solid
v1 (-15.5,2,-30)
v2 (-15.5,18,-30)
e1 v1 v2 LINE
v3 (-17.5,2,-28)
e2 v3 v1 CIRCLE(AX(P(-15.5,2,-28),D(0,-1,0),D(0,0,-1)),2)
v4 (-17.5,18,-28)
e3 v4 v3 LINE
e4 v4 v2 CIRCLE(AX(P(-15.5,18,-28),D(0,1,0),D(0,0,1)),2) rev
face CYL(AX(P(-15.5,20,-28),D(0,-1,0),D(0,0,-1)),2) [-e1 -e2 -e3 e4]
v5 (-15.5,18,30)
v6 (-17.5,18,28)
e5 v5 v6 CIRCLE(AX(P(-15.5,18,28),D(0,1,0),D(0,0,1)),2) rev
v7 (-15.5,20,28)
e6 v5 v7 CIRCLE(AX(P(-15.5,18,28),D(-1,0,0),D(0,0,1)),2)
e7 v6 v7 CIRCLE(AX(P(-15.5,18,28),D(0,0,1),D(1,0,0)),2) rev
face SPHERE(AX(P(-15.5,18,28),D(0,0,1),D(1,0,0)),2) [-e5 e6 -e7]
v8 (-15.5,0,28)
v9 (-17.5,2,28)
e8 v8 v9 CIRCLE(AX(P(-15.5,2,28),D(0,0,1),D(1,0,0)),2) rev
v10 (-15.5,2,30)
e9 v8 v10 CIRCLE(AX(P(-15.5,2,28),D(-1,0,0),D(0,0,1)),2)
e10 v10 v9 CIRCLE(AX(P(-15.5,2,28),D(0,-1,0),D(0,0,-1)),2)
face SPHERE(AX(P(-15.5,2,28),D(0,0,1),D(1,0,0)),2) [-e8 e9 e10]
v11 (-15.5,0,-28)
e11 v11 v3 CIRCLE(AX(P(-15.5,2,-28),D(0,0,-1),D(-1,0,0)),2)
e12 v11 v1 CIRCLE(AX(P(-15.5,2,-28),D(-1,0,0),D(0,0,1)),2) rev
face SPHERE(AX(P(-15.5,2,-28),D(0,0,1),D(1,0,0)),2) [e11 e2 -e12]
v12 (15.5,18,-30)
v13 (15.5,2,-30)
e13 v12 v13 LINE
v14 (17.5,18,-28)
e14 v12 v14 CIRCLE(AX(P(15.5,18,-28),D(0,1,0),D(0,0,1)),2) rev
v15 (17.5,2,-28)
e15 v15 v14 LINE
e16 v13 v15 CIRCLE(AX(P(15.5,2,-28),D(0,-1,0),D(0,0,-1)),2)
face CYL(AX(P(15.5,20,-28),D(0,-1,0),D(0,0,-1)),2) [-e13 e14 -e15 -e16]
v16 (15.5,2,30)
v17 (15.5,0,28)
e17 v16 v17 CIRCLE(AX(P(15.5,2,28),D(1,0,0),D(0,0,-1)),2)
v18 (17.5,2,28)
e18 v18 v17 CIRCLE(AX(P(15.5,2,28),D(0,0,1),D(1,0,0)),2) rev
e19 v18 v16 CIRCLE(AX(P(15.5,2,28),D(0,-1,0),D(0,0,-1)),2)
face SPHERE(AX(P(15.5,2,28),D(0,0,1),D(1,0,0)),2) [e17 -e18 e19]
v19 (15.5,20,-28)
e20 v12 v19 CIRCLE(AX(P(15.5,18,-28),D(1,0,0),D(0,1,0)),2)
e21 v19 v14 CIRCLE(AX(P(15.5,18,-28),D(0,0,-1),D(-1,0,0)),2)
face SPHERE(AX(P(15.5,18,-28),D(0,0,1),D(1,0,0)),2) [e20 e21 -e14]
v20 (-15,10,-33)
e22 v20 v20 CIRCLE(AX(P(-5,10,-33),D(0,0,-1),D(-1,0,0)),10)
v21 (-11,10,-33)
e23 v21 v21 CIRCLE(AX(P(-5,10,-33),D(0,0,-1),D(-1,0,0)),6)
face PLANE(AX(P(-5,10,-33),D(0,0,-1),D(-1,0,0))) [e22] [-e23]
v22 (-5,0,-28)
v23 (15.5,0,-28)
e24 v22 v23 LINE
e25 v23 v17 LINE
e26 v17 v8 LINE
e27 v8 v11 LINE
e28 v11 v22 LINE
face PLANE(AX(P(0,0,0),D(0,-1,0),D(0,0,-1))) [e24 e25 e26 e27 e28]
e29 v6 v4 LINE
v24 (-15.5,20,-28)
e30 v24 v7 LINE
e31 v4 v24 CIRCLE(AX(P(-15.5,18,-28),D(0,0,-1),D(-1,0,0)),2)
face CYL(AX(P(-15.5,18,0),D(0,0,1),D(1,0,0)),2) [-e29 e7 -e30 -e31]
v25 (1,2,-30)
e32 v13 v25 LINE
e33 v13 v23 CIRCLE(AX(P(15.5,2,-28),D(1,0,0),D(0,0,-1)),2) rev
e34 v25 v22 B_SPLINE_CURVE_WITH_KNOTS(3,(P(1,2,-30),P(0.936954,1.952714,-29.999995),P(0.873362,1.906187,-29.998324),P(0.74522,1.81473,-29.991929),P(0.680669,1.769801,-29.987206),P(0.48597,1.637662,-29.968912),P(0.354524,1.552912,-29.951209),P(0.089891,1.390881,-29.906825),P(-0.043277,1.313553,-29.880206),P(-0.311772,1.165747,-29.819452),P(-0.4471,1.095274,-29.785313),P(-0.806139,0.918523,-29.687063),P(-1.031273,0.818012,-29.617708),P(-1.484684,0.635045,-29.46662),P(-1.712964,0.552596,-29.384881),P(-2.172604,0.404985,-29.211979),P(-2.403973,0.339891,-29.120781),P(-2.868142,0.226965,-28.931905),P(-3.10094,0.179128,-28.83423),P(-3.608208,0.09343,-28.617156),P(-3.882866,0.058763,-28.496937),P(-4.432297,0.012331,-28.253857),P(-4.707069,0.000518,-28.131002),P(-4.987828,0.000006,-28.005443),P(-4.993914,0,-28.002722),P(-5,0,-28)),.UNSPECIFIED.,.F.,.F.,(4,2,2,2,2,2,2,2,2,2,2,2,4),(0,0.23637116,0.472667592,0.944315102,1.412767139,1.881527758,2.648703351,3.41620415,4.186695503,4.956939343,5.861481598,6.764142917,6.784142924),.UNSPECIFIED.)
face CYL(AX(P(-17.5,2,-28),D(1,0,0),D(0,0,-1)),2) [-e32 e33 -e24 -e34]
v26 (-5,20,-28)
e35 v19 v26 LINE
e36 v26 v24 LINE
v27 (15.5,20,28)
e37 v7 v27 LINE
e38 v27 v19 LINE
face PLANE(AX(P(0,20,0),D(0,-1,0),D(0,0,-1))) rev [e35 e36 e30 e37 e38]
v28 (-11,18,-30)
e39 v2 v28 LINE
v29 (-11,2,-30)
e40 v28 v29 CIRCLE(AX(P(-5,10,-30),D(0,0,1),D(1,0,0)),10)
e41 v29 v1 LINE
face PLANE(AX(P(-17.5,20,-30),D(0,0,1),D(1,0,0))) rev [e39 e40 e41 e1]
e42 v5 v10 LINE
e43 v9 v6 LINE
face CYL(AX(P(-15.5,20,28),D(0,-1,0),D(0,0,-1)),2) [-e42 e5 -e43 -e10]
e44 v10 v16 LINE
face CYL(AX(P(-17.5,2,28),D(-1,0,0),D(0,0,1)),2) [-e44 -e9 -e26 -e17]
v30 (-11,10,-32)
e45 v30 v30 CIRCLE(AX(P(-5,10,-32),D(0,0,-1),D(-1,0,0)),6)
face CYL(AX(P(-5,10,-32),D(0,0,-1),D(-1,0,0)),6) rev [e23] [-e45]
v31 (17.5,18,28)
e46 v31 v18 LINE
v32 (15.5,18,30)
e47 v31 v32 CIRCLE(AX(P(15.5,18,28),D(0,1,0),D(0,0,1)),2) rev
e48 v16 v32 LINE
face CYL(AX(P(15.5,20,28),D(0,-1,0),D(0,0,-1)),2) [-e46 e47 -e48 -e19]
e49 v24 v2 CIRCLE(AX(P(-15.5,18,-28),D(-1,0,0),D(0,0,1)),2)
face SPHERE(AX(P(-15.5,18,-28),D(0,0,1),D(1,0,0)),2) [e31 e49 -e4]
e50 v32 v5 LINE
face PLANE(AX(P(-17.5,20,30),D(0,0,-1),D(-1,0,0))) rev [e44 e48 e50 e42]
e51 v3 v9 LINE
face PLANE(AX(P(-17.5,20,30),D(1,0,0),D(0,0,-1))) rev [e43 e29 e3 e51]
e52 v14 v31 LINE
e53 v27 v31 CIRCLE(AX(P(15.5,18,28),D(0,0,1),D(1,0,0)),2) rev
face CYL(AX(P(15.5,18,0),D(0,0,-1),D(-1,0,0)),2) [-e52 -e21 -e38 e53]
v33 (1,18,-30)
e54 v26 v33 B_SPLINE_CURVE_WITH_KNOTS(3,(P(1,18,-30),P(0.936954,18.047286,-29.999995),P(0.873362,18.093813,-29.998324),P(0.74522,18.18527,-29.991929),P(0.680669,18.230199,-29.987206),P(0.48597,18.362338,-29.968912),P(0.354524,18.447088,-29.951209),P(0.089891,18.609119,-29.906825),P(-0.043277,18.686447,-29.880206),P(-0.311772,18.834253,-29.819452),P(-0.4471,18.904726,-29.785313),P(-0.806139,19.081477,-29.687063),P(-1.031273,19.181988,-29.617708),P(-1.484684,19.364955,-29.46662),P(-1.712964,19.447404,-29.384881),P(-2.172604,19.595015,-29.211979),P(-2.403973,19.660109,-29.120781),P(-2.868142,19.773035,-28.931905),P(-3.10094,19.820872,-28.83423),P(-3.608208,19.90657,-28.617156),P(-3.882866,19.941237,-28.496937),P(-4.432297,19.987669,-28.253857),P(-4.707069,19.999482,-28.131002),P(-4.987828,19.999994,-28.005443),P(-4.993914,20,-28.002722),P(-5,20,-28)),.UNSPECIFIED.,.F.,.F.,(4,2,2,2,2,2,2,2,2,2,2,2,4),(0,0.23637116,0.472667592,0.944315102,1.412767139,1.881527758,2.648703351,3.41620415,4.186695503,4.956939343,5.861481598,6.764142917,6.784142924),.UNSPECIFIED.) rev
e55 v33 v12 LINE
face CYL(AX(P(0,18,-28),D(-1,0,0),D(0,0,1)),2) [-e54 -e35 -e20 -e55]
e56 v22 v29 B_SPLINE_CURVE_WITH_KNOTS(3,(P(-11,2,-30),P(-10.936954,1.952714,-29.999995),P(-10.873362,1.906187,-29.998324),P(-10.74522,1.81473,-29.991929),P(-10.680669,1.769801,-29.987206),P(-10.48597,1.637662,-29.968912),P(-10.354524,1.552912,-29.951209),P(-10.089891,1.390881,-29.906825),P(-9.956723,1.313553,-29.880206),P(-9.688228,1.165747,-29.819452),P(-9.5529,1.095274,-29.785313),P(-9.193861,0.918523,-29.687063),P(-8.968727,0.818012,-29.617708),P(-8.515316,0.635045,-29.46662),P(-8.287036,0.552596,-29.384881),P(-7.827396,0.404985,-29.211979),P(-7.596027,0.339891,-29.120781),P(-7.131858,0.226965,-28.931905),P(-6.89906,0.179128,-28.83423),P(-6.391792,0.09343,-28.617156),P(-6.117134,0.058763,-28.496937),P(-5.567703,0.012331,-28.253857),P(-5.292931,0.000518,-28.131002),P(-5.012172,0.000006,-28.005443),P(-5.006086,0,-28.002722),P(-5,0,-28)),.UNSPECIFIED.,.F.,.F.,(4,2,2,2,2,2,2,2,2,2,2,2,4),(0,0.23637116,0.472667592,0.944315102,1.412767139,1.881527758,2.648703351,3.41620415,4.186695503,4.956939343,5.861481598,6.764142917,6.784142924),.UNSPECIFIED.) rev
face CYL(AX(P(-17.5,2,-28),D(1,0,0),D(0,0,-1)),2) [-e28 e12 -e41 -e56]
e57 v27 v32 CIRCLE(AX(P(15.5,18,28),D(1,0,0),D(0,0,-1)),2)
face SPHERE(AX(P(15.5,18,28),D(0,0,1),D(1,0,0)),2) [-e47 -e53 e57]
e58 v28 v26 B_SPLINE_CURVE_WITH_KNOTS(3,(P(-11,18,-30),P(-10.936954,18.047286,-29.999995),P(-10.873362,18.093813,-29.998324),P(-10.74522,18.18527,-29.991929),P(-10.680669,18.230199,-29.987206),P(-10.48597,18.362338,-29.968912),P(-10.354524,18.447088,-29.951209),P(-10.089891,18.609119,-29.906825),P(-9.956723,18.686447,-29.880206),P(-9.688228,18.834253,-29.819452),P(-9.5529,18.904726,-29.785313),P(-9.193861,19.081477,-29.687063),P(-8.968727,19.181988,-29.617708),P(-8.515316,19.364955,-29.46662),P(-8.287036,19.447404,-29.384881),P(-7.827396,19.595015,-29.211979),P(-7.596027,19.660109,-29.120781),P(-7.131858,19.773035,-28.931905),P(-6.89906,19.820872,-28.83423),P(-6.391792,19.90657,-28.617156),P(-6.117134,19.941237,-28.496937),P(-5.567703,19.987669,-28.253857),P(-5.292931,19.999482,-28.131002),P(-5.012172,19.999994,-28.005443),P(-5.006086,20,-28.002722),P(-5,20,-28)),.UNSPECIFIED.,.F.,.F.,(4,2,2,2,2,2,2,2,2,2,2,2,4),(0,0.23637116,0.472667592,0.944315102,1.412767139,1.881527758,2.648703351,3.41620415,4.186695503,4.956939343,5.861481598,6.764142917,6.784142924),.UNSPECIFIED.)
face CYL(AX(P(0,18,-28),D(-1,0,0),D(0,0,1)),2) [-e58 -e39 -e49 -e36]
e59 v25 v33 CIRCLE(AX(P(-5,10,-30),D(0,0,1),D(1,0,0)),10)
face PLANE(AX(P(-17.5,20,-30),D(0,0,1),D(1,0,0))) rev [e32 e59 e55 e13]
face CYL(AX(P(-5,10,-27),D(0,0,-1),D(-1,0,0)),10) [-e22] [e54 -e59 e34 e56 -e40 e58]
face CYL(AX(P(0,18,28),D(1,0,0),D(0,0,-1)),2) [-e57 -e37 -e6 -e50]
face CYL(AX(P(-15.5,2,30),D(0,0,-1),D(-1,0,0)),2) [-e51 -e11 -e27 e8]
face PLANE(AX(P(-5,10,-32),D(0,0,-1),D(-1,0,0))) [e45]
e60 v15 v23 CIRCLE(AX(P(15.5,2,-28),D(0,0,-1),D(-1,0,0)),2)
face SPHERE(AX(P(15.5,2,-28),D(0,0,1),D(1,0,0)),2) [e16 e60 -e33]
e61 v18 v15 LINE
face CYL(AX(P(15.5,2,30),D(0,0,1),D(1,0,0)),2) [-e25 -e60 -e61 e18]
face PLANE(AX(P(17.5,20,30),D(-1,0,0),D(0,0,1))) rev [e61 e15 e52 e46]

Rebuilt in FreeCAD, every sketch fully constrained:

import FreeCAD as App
import Part
import Sketcher
from FreeCAD import Vector


def add_polygon(sketch, points):
    """Adds a closed chain of lines whose ends are joined by coincident constraints."""
    first, n = sketch.GeometryCount, len(points)
    for a, b in zip(points, points[1:] + points[:1]):
        sketch.addGeometry(Part.LineSegment(App.Vector(*a, 0), App.Vector(*b, 0)), False)
    for i in range(n):
        sketch.addConstraint(Sketcher.Constraint("Coincident", first + i, 2, first + (i + 1) % n, 1))

doc = App.newDocument("Part")
params = doc.addObject("Spreadsheet::Sheet", "Params")
for row, (alias, value) in enumerate([
    ("sketch1_width", "35 mm"),
    ("sketch1_height", "60 mm"),
    ("pad1_length", "20 mm"),
    ("fillet_radius", "2 mm"),
    ("sketch2_diameter", "20 mm"),
    ("pad2_length", "3 mm"),
    ("pad2_length2", "3 mm"),
    ("sketch3_diameter", "12 mm"),
    ("pocket1_length", "1 mm"),
], start=1):
    params.set(f"A{row}", alias)
    params.set(f"B{row}", "=" + value)
    params.setAlias(f"B{row}", alias)

body = doc.addObject("PartDesign::Body", "Body")

# Sketch on XZ plane
sketch1 = body.newObject("Sketcher::SketchObject", "Sketch")
sketch1.AttachmentSupport = (doc.getObject("XZ_Plane"), [""])
sketch1.MapMode = "FlatFace"
add_polygon(sketch1, [(-18, -30), (-18, 30), (18, 30), (18, -30)])  # lines 0-3
sketch1.addConstraint([
    Sketcher.Constraint("Vertical", 0),
    Sketcher.Constraint("Horizontal", 1),
    Sketcher.Constraint("Vertical", 2),
    Sketcher.Constraint("Horizontal", 3),
    Sketcher.Constraint("Symmetric", 0, 2, 2, 2, -1, 1),
    Sketcher.Constraint("DistanceX", 1, 1, 1, 2, 35.0),
    Sketcher.Constraint("DistanceY", 0, 1, 0, 2, 60.0),
])
sketch1.setExpression("Constraints[9]", "Params.sketch1_width")
sketch1.setExpression("Constraints[10]", "Params.sketch1_height")
pad1 = body.newObject("PartDesign::Pad", "Pad")
pad1.Profile = sketch1
pad1.setExpression("Length", "Params.pad1_length")
pad1.Reversed = True
doc.recompute()

fillet = body.newObject("PartDesign::Fillet", "Fillet")
fillet.Base = (pad1, ["Edge1"])
fillet.UseAllEdges = True
fillet.setExpression("Radius", "Params.fillet_radius")

# Sketch on XY plane
sketch2 = body.newObject("Sketcher::SketchObject", "Sketch001")
sketch2.AttachmentSupport = (doc.getObject("XY_Plane"), [""])
sketch2.MapMode = "FlatFace"
sketch2.AttachmentOffset = App.Placement(Vector(0, 0, -30), App.Rotation())
sketch2.addGeometry(Part.Circle(Vector(-5, 10, 0), Vector(0, 0, 1), 10), False)
sketch2.addConstraint([
    Sketcher.Constraint("Diameter", 0, 20.0),
    Sketcher.Constraint("DistanceX", 0, 3, -1, 1, 5.0),
    Sketcher.Constraint("DistanceY", -1, 1, 0, 3, 10.0),
])
sketch2.setExpression("Constraints[0]", "Params.sketch2_diameter")
pad2 = body.newObject("PartDesign::Pad", "Pad001")
pad2.Profile = sketch2
pad2.Type = "TwoLengths"
pad2.setExpression("Length", "Params.pad2_length")
pad2.setExpression("Length2", "Params.pad2_length2")
pad2.Reversed = True

# Sketch on XY plane
sketch3 = body.newObject("Sketcher::SketchObject", "Sketch002")
sketch3.AttachmentSupport = (doc.getObject("XY_Plane"), [""])
sketch3.MapMode = "FlatFace"
sketch3.AttachmentOffset = App.Placement(Vector(0, 0, -33), App.Rotation())
sketch3.addGeometry(Part.Circle(Vector(-5, 10, 0), Vector(0, 0, 1), 6), False)
sketch3.addConstraint([
    Sketcher.Constraint("Diameter", 0, 12.0),
    Sketcher.Constraint("DistanceX", 0, 3, -1, 1, 5.0),
    Sketcher.Constraint("DistanceY", -1, 1, 0, 3, 10.0),
])
sketch3.setExpression("Constraints[0]", "Params.sketch3_diameter")
pocket1 = body.newObject("PartDesign::Pocket", "Pocket")
pocket1.Profile = sketch3
pocket1.setExpression("Length", "Params.pocket1_length")
pocket1.Reversed = True

doc.recompute()
